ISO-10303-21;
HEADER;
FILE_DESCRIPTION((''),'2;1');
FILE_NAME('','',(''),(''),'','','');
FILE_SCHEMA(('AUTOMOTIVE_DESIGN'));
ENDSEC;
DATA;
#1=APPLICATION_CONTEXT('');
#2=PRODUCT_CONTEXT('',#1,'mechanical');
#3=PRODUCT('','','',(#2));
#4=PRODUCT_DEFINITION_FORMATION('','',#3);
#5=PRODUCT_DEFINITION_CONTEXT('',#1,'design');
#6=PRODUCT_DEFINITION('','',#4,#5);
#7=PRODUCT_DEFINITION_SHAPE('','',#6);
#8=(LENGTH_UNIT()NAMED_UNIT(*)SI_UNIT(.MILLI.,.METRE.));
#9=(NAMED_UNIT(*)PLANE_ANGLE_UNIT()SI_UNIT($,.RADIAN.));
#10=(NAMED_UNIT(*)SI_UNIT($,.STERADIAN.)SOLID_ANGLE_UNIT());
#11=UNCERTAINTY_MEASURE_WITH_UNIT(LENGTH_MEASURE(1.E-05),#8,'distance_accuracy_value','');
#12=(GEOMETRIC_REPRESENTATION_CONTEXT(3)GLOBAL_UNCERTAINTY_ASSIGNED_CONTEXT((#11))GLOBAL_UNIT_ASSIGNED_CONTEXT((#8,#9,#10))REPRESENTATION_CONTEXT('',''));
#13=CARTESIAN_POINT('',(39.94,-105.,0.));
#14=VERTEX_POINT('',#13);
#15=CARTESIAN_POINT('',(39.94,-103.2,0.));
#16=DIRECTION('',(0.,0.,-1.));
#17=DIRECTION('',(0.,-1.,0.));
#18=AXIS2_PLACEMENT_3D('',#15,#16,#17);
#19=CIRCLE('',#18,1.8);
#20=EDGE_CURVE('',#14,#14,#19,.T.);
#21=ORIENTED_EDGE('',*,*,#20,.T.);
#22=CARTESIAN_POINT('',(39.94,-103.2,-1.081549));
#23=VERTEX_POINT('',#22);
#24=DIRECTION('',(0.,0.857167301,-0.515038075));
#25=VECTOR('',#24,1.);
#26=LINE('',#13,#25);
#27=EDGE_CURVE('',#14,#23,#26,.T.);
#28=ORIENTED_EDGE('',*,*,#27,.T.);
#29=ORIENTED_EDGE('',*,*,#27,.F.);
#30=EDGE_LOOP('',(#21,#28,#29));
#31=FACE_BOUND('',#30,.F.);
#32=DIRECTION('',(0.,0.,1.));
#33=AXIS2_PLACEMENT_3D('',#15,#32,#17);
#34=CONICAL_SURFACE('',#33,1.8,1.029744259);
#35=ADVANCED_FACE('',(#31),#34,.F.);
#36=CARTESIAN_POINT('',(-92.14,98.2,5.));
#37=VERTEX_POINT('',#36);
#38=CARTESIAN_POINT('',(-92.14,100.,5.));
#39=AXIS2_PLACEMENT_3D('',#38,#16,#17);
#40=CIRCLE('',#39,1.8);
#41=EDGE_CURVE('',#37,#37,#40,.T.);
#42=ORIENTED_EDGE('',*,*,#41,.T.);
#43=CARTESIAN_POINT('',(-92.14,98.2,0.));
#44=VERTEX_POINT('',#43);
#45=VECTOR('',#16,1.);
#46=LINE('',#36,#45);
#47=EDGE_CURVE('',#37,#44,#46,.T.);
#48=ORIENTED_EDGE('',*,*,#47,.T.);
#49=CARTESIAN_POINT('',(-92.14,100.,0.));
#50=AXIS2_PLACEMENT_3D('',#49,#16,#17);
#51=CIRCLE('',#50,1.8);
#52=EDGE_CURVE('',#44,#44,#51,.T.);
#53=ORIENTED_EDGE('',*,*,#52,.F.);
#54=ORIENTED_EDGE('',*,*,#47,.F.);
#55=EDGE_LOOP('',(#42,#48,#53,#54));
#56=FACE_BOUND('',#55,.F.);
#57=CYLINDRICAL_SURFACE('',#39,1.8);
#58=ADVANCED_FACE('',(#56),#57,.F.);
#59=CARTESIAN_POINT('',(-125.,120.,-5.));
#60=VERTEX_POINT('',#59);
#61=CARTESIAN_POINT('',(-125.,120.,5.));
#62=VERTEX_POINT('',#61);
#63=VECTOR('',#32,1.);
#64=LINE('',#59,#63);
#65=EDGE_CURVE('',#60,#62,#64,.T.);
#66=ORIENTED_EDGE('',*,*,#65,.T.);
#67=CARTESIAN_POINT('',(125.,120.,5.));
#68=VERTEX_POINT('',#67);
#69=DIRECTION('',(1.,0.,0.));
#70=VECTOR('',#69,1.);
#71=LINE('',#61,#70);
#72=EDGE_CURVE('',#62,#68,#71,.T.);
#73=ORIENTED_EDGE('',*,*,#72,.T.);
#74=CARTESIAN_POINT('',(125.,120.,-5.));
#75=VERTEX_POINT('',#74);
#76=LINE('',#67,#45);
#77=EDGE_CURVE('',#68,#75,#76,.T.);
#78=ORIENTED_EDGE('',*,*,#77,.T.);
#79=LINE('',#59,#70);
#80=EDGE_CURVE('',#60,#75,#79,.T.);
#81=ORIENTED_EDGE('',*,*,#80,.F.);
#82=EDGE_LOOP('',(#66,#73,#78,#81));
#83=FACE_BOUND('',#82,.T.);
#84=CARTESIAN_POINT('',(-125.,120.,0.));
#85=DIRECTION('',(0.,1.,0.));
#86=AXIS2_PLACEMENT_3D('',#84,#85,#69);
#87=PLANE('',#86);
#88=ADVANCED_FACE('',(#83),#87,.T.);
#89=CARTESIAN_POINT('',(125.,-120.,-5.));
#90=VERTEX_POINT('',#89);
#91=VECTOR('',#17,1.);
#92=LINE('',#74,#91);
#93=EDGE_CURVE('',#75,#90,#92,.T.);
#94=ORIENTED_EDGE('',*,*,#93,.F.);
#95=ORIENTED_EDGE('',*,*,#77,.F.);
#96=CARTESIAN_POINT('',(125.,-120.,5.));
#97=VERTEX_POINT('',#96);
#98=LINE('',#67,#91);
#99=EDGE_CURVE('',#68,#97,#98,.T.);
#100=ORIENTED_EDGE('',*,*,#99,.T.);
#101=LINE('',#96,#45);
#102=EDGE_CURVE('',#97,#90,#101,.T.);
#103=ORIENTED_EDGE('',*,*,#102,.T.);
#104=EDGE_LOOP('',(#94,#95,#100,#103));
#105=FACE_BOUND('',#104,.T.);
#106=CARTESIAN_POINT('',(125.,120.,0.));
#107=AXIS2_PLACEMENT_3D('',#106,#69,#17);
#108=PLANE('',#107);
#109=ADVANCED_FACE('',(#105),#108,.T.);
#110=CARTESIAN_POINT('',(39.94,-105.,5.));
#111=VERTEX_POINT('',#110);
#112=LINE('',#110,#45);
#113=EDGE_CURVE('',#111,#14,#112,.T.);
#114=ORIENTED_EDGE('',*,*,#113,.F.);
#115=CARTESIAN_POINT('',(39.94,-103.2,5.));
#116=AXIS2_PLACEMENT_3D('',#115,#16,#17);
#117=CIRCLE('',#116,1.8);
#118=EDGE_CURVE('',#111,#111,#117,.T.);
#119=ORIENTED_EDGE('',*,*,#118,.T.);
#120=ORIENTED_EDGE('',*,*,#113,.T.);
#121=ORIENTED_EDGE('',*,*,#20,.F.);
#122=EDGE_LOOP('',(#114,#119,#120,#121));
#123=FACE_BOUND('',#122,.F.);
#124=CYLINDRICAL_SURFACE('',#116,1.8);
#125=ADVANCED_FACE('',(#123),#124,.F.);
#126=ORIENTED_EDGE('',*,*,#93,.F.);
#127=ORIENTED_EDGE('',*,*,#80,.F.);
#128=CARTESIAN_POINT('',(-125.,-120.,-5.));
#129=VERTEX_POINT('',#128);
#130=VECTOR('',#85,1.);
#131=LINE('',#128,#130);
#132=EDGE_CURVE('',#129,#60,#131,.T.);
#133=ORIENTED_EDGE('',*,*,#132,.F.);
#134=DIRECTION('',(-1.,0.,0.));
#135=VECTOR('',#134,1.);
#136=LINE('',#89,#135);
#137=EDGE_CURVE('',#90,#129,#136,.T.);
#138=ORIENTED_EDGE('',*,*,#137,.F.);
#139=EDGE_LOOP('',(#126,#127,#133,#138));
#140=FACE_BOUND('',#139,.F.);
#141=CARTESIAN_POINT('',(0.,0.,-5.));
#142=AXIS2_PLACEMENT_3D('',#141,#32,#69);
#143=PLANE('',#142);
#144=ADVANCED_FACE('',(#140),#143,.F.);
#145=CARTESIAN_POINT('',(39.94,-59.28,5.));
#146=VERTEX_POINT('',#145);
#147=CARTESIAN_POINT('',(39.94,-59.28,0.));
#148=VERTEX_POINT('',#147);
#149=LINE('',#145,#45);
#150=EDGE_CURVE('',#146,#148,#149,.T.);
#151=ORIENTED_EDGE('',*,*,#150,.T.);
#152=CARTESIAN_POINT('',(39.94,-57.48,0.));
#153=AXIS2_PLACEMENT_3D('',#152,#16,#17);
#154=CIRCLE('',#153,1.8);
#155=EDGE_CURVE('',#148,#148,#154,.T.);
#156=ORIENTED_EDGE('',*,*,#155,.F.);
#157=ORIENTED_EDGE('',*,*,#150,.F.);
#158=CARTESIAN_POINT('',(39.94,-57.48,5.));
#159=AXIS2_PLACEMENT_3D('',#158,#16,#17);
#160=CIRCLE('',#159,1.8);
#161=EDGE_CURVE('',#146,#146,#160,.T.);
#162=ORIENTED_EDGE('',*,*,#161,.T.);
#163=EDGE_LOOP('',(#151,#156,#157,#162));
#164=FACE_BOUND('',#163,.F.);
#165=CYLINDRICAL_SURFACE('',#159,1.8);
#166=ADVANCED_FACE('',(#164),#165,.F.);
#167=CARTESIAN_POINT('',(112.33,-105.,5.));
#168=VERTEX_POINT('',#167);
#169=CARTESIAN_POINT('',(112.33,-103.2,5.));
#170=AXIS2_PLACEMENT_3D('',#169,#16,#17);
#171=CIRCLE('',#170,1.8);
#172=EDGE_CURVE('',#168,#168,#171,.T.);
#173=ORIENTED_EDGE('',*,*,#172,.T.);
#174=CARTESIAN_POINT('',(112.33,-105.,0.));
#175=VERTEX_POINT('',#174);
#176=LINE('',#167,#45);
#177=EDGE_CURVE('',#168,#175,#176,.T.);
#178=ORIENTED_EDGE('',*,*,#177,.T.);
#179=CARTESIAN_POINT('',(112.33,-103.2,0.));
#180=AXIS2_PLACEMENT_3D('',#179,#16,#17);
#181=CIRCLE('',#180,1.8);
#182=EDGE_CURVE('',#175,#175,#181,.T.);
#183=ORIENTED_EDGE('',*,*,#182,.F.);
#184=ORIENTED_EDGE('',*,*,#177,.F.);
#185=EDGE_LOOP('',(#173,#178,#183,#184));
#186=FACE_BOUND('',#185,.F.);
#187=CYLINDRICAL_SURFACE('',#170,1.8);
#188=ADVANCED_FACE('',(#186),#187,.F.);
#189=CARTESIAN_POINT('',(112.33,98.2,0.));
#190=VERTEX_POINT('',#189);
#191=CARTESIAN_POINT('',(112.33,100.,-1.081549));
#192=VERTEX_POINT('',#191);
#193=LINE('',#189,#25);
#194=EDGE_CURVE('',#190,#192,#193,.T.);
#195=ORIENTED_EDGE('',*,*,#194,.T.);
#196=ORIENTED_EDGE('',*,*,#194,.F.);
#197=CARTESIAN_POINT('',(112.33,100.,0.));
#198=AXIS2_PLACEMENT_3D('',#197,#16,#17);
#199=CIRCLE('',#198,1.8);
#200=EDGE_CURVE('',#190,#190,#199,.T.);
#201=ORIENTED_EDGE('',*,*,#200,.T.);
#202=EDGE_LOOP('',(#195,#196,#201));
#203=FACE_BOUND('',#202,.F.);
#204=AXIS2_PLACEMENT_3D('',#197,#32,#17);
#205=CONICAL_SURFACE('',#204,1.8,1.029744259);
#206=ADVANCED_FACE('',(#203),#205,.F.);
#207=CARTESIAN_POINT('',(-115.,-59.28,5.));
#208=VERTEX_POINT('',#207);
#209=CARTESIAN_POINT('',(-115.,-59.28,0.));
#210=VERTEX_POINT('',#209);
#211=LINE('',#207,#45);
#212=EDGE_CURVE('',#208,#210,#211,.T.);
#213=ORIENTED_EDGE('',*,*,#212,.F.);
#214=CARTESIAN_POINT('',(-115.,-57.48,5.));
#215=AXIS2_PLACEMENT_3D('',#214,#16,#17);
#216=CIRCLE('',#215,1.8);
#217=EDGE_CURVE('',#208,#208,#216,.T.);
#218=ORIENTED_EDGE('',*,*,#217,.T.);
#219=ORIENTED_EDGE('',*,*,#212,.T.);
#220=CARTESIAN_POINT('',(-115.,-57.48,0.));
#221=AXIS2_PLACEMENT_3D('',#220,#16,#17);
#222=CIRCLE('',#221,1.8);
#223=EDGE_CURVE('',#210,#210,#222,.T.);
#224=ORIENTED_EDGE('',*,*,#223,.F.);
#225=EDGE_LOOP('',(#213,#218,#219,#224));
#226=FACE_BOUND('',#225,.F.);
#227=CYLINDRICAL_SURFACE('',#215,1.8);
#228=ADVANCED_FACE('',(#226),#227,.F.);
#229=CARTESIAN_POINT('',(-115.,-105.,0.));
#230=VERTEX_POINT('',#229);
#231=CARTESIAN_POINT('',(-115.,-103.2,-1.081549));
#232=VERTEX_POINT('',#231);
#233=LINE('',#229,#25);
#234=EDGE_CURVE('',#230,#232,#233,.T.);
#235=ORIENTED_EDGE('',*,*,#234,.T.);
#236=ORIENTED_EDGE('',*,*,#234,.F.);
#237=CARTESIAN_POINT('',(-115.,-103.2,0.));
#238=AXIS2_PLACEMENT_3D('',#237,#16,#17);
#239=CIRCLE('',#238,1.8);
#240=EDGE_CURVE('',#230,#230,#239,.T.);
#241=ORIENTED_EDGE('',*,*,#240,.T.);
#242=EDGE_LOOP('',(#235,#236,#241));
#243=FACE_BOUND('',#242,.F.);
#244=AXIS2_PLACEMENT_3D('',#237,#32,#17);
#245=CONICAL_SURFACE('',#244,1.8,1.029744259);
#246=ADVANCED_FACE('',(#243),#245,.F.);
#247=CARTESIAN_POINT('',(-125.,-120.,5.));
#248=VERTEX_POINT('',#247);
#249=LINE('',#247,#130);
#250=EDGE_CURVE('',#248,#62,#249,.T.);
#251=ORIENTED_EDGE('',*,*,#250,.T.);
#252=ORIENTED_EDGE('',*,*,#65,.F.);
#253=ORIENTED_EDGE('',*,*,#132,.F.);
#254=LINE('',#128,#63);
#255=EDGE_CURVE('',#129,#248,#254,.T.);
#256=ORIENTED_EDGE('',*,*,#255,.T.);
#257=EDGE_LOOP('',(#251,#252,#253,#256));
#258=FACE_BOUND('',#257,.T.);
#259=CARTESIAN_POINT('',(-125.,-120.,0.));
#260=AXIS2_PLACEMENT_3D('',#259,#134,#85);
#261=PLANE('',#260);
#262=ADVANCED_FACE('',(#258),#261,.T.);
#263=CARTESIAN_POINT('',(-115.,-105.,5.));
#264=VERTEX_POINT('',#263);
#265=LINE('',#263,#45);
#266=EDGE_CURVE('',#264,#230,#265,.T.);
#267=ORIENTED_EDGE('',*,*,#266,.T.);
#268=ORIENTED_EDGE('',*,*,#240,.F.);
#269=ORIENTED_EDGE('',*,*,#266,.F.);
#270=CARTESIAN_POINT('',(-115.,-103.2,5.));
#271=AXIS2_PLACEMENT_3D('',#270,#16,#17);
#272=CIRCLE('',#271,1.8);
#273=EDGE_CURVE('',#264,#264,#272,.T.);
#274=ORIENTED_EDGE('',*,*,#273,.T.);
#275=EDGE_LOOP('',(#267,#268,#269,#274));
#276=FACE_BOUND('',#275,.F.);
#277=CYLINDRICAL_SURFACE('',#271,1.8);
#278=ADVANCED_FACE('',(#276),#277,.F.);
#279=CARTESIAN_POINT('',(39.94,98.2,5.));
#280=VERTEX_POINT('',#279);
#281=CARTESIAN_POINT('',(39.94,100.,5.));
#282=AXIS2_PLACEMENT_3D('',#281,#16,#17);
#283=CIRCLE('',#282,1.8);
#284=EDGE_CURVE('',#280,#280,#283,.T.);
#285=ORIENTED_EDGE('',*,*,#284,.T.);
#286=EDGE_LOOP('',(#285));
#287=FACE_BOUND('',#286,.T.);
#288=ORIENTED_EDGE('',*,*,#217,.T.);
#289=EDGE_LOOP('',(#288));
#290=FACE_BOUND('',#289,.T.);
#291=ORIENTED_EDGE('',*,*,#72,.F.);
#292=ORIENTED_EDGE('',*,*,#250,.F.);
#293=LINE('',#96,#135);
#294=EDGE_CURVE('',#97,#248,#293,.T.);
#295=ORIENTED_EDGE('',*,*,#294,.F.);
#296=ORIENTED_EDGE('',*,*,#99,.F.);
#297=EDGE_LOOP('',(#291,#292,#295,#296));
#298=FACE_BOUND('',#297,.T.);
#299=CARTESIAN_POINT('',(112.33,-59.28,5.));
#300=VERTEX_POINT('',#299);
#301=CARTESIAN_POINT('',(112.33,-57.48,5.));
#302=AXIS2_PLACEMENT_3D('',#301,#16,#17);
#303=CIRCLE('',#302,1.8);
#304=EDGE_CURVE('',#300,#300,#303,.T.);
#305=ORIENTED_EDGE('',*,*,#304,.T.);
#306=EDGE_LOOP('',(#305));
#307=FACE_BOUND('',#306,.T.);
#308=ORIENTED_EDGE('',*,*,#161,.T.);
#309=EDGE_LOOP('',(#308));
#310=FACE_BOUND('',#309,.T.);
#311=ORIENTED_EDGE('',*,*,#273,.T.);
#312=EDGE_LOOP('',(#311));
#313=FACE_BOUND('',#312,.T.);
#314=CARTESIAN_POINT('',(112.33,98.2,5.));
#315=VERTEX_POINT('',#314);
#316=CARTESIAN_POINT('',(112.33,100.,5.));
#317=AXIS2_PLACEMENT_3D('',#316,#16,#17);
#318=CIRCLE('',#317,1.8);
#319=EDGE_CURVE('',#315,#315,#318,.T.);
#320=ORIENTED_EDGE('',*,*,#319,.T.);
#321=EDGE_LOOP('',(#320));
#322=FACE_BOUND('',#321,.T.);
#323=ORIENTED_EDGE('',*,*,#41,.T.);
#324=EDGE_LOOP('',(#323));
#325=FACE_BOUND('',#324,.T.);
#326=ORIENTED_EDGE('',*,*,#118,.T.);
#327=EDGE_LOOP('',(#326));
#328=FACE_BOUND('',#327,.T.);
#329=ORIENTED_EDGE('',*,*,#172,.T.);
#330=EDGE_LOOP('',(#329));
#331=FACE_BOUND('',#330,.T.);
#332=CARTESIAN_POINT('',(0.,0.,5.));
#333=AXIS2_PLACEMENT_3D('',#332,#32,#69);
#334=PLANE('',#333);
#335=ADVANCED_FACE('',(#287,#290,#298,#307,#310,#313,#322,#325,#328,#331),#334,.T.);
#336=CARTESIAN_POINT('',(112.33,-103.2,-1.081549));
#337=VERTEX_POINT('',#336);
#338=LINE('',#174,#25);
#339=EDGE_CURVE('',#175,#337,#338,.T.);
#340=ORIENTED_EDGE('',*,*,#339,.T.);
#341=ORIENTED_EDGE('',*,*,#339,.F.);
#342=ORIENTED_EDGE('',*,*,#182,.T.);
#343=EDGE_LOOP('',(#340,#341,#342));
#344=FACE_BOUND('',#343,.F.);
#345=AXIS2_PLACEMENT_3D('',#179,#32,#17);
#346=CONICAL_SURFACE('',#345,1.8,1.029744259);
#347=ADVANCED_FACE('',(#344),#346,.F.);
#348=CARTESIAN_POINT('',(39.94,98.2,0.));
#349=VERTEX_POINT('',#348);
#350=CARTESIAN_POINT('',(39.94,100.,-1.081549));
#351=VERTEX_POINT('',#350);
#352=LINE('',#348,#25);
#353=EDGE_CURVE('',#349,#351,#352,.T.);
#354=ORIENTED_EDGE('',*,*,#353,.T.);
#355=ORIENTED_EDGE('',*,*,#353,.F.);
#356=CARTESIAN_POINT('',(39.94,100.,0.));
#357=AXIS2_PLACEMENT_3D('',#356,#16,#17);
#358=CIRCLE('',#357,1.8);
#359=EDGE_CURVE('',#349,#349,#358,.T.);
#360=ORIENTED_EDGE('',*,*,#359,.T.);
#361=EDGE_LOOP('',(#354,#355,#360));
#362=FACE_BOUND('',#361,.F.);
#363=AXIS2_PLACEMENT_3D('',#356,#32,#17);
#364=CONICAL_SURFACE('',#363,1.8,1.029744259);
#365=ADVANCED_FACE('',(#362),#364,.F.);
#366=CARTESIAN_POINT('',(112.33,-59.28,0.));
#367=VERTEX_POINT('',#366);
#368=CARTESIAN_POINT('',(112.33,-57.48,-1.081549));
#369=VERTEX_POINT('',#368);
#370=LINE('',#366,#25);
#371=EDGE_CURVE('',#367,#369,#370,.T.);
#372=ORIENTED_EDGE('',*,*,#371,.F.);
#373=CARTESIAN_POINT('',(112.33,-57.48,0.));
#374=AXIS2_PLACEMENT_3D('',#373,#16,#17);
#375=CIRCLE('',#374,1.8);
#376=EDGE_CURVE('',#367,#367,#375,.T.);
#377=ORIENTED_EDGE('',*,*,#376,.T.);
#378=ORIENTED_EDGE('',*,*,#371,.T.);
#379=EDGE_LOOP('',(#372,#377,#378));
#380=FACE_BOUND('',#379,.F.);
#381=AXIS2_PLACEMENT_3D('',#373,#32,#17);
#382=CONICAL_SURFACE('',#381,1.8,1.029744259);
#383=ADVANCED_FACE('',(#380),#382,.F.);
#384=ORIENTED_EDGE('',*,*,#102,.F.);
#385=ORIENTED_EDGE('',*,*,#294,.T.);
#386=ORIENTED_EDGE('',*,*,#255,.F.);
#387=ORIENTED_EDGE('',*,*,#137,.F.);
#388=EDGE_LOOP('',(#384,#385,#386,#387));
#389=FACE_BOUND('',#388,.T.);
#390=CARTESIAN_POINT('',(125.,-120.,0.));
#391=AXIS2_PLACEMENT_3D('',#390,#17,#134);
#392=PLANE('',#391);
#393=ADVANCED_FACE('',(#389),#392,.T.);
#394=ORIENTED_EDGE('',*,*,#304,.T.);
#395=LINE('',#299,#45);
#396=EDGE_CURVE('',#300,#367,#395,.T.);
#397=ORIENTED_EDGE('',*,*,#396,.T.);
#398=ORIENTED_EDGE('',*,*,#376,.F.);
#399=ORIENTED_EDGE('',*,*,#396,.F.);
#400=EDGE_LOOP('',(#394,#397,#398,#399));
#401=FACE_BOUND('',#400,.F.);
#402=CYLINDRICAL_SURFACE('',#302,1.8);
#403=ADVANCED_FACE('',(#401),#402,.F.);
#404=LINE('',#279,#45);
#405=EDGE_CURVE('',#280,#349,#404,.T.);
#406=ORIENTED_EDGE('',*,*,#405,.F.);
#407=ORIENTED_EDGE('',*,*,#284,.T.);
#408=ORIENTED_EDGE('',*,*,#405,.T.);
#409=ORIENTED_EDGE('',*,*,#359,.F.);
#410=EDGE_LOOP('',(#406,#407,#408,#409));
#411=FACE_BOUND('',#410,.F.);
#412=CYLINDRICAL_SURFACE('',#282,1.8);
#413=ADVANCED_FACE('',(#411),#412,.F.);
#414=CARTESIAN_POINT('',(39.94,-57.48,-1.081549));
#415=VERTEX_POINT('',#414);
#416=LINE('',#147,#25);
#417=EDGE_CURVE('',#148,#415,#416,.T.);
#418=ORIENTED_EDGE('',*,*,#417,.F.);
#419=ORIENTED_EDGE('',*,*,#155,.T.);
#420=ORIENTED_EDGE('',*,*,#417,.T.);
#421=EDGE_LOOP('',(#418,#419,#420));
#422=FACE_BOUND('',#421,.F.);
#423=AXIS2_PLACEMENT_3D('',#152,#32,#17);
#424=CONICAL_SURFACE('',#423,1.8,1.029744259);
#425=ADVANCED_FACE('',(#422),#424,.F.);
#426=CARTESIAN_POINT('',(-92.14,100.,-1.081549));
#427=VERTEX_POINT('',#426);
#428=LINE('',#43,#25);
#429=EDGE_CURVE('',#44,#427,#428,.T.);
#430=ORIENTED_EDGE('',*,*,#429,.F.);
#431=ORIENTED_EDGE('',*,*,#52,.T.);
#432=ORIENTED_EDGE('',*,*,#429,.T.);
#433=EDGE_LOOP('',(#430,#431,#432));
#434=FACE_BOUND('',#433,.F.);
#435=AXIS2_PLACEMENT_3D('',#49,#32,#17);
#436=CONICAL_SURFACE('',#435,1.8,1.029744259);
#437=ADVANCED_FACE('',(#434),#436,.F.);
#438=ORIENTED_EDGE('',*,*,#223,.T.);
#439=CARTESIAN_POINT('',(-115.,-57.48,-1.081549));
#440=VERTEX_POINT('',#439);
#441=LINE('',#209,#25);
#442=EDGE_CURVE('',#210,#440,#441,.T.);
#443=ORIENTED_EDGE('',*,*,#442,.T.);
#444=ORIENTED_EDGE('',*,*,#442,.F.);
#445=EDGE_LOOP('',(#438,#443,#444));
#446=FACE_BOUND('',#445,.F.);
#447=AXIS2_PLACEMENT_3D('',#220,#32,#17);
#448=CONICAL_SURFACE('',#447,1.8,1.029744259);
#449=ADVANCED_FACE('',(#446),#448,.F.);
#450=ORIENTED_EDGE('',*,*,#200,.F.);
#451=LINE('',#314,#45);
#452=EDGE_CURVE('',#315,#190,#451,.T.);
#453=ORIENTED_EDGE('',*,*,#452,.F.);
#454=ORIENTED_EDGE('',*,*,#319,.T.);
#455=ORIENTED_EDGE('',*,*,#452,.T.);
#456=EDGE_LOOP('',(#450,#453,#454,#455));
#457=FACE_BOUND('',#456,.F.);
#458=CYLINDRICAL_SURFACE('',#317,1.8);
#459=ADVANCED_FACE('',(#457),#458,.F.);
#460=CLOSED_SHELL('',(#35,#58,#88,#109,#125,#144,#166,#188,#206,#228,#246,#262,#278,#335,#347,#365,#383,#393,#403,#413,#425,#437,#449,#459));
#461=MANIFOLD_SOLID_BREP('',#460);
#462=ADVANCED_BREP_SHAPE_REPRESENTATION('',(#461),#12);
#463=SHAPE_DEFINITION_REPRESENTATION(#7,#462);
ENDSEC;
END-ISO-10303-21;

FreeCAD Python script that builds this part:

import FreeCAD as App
import Part
import Sketcher

doc = App.newDocument("Part")
body = doc.addObject("PartDesign::Body", "Body")

# Sketch on XY plane
sketch1 = doc.addObject("Sketcher::SketchObject", "Sketch")
body.addObject(sketch1)
sketch1.AttachmentSupport = (doc.XY_Plane, [""])
sketch1.MapMode = "FlatFace"
sketch1.addGeometry([
    Part.LineSegment(App.Vector(125, 120, 0), App.Vector(-125, 120, 0)),
    Part.LineSegment(App.Vector(-125, 120, 0), App.Vector(-125, -120, 0)),
    Part.LineSegment(App.Vector(-125, -120, 0), App.Vector(125, -120, 0)),
    Part.LineSegment(App.Vector(125, -120, 0), App.Vector(125, 120, 0)),
], False)
sketch1.addConstraint([
    Sketcher.Constraint("Coincident", 0, 2, 1, 1),
    Sketcher.Constraint("Coincident", 1, 2, 2, 1),
    Sketcher.Constraint("Coincident", 2, 2, 3, 1),
    Sketcher.Constraint("Coincident", 3, 2, 0, 1),
    Sketcher.Constraint("Horizontal", 0),
    Sketcher.Constraint("Vertical", 1),
    Sketcher.Constraint("Horizontal", 2),
    Sketcher.Constraint("Vertical", 3),
    Sketcher.Constraint("Symmetric", 0, 2, 2, 2, -1, 1),
    Sketcher.Constraint("DistanceX", 0, 2, 0, 1, 250.0),
    Sketcher.Constraint("DistanceY", 1, 2, 1, 1, 240.0),
])
pad1 = doc.addObject("PartDesign::Pad", "Pad")
body.addObject(pad1)
pad1.Profile = sketch1
pad1.Length = 10
pad1.Midplane = True

# Sketch on XY plane
sketch2 = doc.addObject("Sketcher::SketchObject", "Sketch001")
body.addObject(sketch2)
sketch2.AttachmentSupport = (doc.XY_Plane, [""])
sketch2.MapMode = "FlatFace"
sketch2.AttachmentOffset = App.Placement(App.Vector(0, 0, 5), App.Rotation())
sketch2.addGeometry([
    Part.Circle(App.Vector(-92.1, 100, 0), App.Vector(0, 0, 1), 1.8),  # 0
    Part.Circle(App.Vector(39.9, 100, 0), App.Vector(0, 0, 1), 1.8),  # 1
    Part.Circle(App.Vector(112.3, 100, 0), App.Vector(0, 0, 1), 1.8),  # 2
    Part.Circle(App.Vector(112.3, -57.5, 0), App.Vector(0, 0, 1), 1.8),  # 3
    Part.Circle(App.Vector(39.9, -57.5, 0), App.Vector(0, 0, 1), 1.8),  # 4
    Part.Circle(App.Vector(39.9, -103.2, 0), App.Vector(0, 0, 1), 1.8),  # 5
    Part.Circle(App.Vector(112.3, -103.2, 0), App.Vector(0, 0, 1), 1.8),  # 6
    Part.Circle(App.Vector(-115, -57.5, 0), App.Vector(0, 0, 1), 1.8),  # 7
    Part.Circle(App.Vector(-115, -103.2, 0), App.Vector(0, 0, 1), 1.8),  # 8
], False)
sketch2.addConstraint([
    Sketcher.Constraint("Equal", 0, 1),
    Sketcher.Constraint("Equal", 1, 2),
    Sketcher.Constraint("Equal", 2, 3),
    Sketcher.Constraint("Equal", 3, 4),
    Sketcher.Constraint("Equal", 4, 5),
    Sketcher.Constraint("Equal", 5, 6),
    Sketcher.Constraint("Equal", 6, 7),
    Sketcher.Constraint("Equal", 7, 8),
    Sketcher.Constraint("Horizontal", 0, 3, 1, 3),
    Sketcher.Constraint("Horizontal", 1, 3, 2, 3),
    Sketcher.Constraint("Horizontal", 3, 3, 4, 3),
    Sketcher.Constraint("Horizontal", 5, 3, 6, 3),
    Sketcher.Constraint("Horizontal", 4, 3, 7, 3),
    Sketcher.Constraint("Horizontal", 6, 3, 8, 3),
    Sketcher.Constraint("Vertical", 2, 3, 3, 3),
    Sketcher.Constraint("Vertical", 1, 3, 4, 3),
    Sketcher.Constraint("Vertical", 4, 3, 5, 3),
    Sketcher.Constraint("Vertical", 3, 3, 6, 3),
    Sketcher.Constraint("Vertical", 7, 3, 8, 3),
    Sketcher.Constraint("Diameter", 0, 3.6),
    Sketcher.Constraint("DistanceY", -1, 1, 0, 3, 100.0),
    Sketcher.Constraint("DistanceX", 7, 3, -1, 1, 115.0),
    Sketcher.Constraint("DistanceY", 5, 3, -1, 1, 103.2),
    Sketcher.Constraint("DistanceX", 0, 3, -1, 1, 92.14),
    Sketcher.Constraint("DistanceX", -1, 1, 1, 3, 39.94),
    Sketcher.Constraint("DistanceX", -1, 1, 2, 3, 112.33),
    Sketcher.Constraint("DistanceY", 3, 3, -1, 1, 57.48),
])
doc.recompute()
hole = doc.addObject("PartDesign::Hole", "Hole")
body.addObject(hole)
hole.Profile = sketch2
hole.ThreadType = "None"
hole.Diameter = 3.6
hole.DepthType = "Dimension"
hole.Depth = 5
hole.DrillPoint = "Angled"
hole.DrillPointAngle = 118

doc.recompute()
